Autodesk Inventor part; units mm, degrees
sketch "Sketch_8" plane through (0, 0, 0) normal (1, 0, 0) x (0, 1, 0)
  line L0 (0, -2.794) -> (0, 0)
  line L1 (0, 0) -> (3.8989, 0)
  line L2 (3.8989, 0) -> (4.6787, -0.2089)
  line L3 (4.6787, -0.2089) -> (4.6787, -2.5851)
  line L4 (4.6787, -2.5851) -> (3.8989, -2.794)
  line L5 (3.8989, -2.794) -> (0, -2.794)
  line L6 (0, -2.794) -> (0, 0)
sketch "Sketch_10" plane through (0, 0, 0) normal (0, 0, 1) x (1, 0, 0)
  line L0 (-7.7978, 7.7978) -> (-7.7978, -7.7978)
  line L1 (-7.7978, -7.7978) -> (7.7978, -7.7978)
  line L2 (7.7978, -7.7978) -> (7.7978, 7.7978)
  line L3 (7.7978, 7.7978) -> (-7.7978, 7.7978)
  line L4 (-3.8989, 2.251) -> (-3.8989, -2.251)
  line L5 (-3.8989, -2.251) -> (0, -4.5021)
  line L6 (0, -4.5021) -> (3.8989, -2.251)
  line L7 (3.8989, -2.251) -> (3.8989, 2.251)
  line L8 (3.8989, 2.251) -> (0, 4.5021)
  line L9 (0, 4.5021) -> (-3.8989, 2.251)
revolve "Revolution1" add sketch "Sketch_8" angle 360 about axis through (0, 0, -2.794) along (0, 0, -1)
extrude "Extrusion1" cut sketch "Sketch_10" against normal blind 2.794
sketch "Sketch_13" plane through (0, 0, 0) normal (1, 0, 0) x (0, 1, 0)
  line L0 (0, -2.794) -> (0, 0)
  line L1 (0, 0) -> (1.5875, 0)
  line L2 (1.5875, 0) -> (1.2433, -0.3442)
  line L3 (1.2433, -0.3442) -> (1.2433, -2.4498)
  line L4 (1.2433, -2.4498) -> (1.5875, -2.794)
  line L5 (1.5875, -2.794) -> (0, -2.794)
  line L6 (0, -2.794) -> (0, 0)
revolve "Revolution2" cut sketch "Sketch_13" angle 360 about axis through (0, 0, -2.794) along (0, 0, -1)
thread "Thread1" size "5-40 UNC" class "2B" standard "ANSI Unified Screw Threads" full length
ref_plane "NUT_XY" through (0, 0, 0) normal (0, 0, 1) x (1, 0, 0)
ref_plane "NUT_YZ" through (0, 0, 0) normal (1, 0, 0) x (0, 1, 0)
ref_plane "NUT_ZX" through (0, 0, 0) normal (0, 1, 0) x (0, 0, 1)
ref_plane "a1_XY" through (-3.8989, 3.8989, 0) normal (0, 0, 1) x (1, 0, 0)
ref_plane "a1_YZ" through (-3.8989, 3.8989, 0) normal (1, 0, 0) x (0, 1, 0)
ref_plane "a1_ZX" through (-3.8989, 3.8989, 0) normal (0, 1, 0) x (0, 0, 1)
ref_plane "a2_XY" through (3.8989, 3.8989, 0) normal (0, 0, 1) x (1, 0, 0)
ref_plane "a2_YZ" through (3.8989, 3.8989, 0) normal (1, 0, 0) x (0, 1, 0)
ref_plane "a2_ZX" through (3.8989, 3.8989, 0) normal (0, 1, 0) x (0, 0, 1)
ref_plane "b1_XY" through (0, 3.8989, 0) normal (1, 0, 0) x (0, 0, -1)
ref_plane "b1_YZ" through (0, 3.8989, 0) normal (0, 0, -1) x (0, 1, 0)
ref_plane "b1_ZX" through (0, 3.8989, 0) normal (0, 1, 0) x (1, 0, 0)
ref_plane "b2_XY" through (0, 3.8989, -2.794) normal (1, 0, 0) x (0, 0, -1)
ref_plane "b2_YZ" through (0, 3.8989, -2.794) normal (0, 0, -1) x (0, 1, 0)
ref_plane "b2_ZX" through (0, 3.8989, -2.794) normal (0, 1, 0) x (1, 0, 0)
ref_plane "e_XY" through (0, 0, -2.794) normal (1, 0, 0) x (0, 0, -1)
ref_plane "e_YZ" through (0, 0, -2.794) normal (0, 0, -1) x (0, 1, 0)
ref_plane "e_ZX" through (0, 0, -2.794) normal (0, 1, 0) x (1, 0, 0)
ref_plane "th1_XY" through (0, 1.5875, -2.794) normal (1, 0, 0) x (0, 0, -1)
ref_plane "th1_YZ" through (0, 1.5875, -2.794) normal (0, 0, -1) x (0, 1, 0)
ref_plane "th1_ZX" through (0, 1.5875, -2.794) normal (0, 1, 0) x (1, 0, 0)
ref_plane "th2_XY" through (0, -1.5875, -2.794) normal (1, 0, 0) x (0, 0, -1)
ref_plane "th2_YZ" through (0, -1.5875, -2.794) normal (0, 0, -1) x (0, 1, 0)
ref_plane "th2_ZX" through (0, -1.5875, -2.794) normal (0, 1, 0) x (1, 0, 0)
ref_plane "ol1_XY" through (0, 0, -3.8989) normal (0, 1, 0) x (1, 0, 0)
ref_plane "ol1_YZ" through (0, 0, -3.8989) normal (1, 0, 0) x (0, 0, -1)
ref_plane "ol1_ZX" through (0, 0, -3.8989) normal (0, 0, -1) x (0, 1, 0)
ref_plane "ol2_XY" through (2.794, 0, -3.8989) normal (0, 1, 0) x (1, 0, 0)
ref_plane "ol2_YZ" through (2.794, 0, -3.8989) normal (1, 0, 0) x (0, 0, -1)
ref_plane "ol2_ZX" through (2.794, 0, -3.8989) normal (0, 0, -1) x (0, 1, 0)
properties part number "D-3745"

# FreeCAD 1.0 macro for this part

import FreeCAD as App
import Part
import Sketcher
Q = App.Units.Quantity

doc = App.newDocument("Part")
body = doc.addObject("PartDesign::Body", "Body")

# Sketch on YZ plane
sketch1 = body.newObject("Sketcher::SketchObject", "Sketch")
sketch1.AttachmentSupport = (doc.getObject("YZ_Plane"), [""])
sketch1.MapMode = "FlatFace"
sketch1.addGeometry(Part.LineSegment(App.Vector(0, 0, 0), App.Vector(0, -2.8, 0)), False)
sketch1.addGeometry(Part.LineSegment(App.Vector(0, -2.8, 0), App.Vector(3.9, -2.8, 0)), False)
sketch1.addGeometry(Part.LineSegment(App.Vector(3.9, -2.8, 0), App.Vector(4.7, -2.6, 0)), False)
sketch1.addGeometry(Part.LineSegment(App.Vector(4.7, -2.6, 0), App.Vector(4.7, -0.2, 0)), False)
sketch1.addGeometry(Part.LineSegment(App.Vector(4.7, -0.2, 0), App.Vector(3.9, 0, 0)), False)
sketch1.addGeometry(Part.LineSegment(App.Vector(3.9, 0, 0), App.Vector(0, 0, 0)), False)
sketch1.addConstraint(Sketcher.Constraint("Coincident", 0, 2, 1, 1))
sketch1.addConstraint(Sketcher.Constraint("Coincident", 1, 2, 2, 1))
sketch1.addConstraint(Sketcher.Constraint("Coincident", 2, 2, 3, 1))
sketch1.addConstraint(Sketcher.Constraint("Coincident", 3, 2, 4, 1))
sketch1.addConstraint(Sketcher.Constraint("Coincident", 4, 2, 5, 1))
sketch1.addConstraint(Sketcher.Constraint("Coincident", 5, 2, 0, 1))
sketch1.addConstraint(Sketcher.Constraint("Vertical", 0))
sketch1.addConstraint(Sketcher.Constraint("Horizontal", 1))
sketch1.addConstraint(Sketcher.Constraint("Vertical", 3))
sketch1.addConstraint(Sketcher.Constraint("Horizontal", 5))
sketch1.addConstraint(Sketcher.Constraint("Coincident", 5, 2, -1, 1))
sketch1.addConstraint(Sketcher.Constraint("Vertical", 1, 2, 4, 2))
sketch1.addConstraint(Sketcher.Constraint("Equal", 2, 4))
sketch1.addConstraint(Sketcher.Constraint("DistanceY", 0, 2, 0, 1, Q("0.11 in")))
sketch1.addConstraint(Sketcher.Constraint("DistanceX", 1, 1, 1, 2, Q("0.1535 in")))
sketch1.addConstraint(Sketcher.Constraint("DistanceY", 3, 1, 3, 2, 2.3762))
sketch1.addConstraint(Sketcher.Constraint("DistanceX", -1, 1, 2, 2, Q("0.1842 in")))
revolution = body.newObject("PartDesign::Revolution", "Revolution")
revolution.Profile = sketch1
revolution.ReferenceAxis = (sketch1, ["V_Axis"])
revolution.Angle = 360

# Sketch on XY plane
sketch2 = body.newObject("Sketcher::SketchObject", "Sketch001")
sketch2.AttachmentSupport = (doc.getObject("XY_Plane"), [""])
sketch2.MapMode = "FlatFace"
sketch2.addGeometry(Part.LineSegment(App.Vector(7.8, 7.8, 0), App.Vector(-7.8, 7.8, 0)), False)
sketch2.addGeometry(Part.LineSegment(App.Vector(-7.8, 7.8, 0), App.Vector(-7.8, -7.8, 0)), False)
sketch2.addGeometry(Part.LineSegment(App.Vector(-7.8, -7.8, 0), App.Vector(7.8, -7.8, 0)), False)
sketch2.addGeometry(Part.LineSegment(App.Vector(7.8, -7.8, 0), App.Vector(7.8, 7.8, 0)), False)
sketch2.addGeometry(Part.LineSegment(App.Vector(-3.9, -2.3, 0), App.Vector(-3.9, 2.3, 0)), False)
sketch2.addGeometry(Part.LineSegment(App.Vector(-3.9, 2.3, 0), App.Vector(0, 4.5, 0)), False)
sketch2.addGeometry(Part.LineSegment(App.Vector(0, 4.5, 0), App.Vector(3.9, 2.3, 0)), False)
sketch2.addGeometry(Part.LineSegment(App.Vector(3.9, 2.3, 0), App.Vector(3.9, -2.3, 0)), False)
sketch2.addGeometry(Part.LineSegment(App.Vector(3.9, -2.3, 0), App.Vector(0, -4.5, 0)), False)
sketch2.addGeometry(Part.LineSegment(App.Vector(0, -4.5, 0), App.Vector(-3.9, -2.3, 0)), False)
sketch2.addConstraint(Sketcher.Constraint("Coincident", 0, 2, 1, 1))
sketch2.addConstraint(Sketcher.Constraint("Coincident", 1, 2, 2, 1))
sketch2.addConstraint(Sketcher.Constraint("Coincident", 2, 2, 3, 1))
sketch2.addConstraint(Sketcher.Constraint("Coincident", 3, 2, 0, 1))
sketch2.addConstraint(Sketcher.Constraint("Coincident", 4, 2, 5, 1))
sketch2.addConstraint(Sketcher.Constraint("Coincident", 5, 2, 6, 1))
sketch2.addConstraint(Sketcher.Constraint("Coincident", 6, 2, 7, 1))
sketch2.addConstraint(Sketcher.Constraint("Coincident", 7, 2, 8, 1))
sketch2.addConstraint(Sketcher.Constraint("Coincident", 8, 2, 9, 1))
sketch2.addConstraint(Sketcher.Constraint("Coincident", 9, 2, 4, 1))
sketch2.addConstraint(Sketcher.Constraint("Horizontal", 0))
sketch2.addConstraint(Sketcher.Constraint("Vertical", 1))
sketch2.addConstraint(Sketcher.Constraint("Horizontal", 2))
sketch2.addConstraint(Sketcher.Constraint("Vertical", 3))
sketch2.addConstraint(Sketcher.Constraint("Vertical", 4))
sketch2.addConstraint(Sketcher.Constraint("Vertical", 7))
sketch2.addConstraint(Sketcher.Constraint("Symmetric", 0, 2, 2, 2, -1, 1))
sketch2.addConstraint(Sketcher.Constraint("Symmetric", 4, 2, 7, 2, -1, 1))
sketch2.addConstraint(Sketcher.Constraint("Symmetric", 5, 2, 8, 2, -1, 1))
sketch2.addConstraint(Sketcher.Constraint("PointOnObject", 5, 2, -2))
sketch2.addConstraint(Sketcher.Constraint("Parallel", 6, 9))
sketch2.addConstraint(Sketcher.Constraint("Horizontal", 4, 2, 6, 2))
sketch2.addConstraint(Sketcher.Constraint("Equal", 2, 1))
sketch2.addConstraint(Sketcher.Constraint("Angle", 5, Q("30.0008 deg")))
sketch2.addConstraint(Sketcher.Constraint("DistanceX", 0, 2, 0, 1, Q("0.614 in")))
sketch2.addConstraint(Sketcher.Constraint("DistanceX", 4, 2, 6, 2, Q("0.307 in")))
sketch2.addConstraint(Sketcher.Constraint("DistanceY", 4, 1, 4, 2, 4.502))
pocket1 = body.newObject("PartDesign::Pocket", "Pocket")
pocket1.Profile = sketch2
pocket1.Length = Q("0.11 in")

# Sketch on YZ plane
sketch3 = body.newObject("Sketcher::SketchObject", "Sketch002")
sketch3.AttachmentSupport = (doc.getObject("YZ_Plane"), [""])
sketch3.MapMode = "FlatFace"
sketch3.addGeometry(Part.LineSegment(App.Vector(0, 0, 0), App.Vector(0, -2.79, 0)), False)
sketch3.addGeometry(Part.LineSegment(App.Vector(0, -2.79, 0), App.Vector(1.59, -2.79, 0)), False)
sketch3.addGeometry(Part.LineSegment(App.Vector(1.59, -2.79, 0), App.Vector(1.24, -2.45, 0)), False)
sketch3.addGeometry(Part.LineSegment(App.Vector(1.24, -2.45, 0), App.Vector(1.24, -0.34, 0)), False)
sketch3.addGeometry(Part.LineSegment(App.Vector(1.24, -0.34, 0), App.Vector(1.59, 0, 0)), False)
sketch3.addGeometry(Part.LineSegment(App.Vector(1.59, 0, 0), App.Vector(0, 0, 0)), False)
sketch3.addConstraint(Sketcher.Constraint("Coincident", 0, 2, 1, 1))
sketch3.addConstraint(Sketcher.Constraint("Coincident", 1, 2, 2, 1))
sketch3.addConstraint(Sketcher.Constraint("Coincident", 2, 2, 3, 1))
sketch3.addConstraint(Sketcher.Constraint("Coincident", 3, 2, 4, 1))
sketch3.addConstraint(Sketcher.Constraint("Coincident", 4, 2, 5, 1))
sketch3.addConstraint(Sketcher.Constraint("Coincident", 5, 2, 0, 1))
sketch3.addConstraint(Sketcher.Constraint("Vertical", 0))
sketch3.addConstraint(Sketcher.Constraint("Horizontal", 1))
sketch3.addConstraint(Sketcher.Constraint("Vertical", 3))
sketch3.addConstraint(Sketcher.Constraint("Horizontal", 5))
sketch3.addConstraint(Sketcher.Constraint("Coincident", 5, 2, -1, 1))
sketch3.addConstraint(Sketcher.Constraint("Perpendicular", 2, 4))
sketch3.addConstraint(Sketcher.Constraint("Vertical", 1, 2, 4, 2))
sketch3.addConstraint(Sketcher.Constraint("Equal", 2, 4))
sketch3.addConstraint(Sketcher.Constraint("DistanceY", 0, 2, 0, 1, Q("0.11 in")))
sketch3.addConstraint(Sketcher.Constraint("DistanceX", 1, 1, 1, 2, Q("0.0625 in")))
sketch3.addConstraint(Sketcher.Constraint("DistanceY", 3, 1, 3, 2, Q("0.0829 in")))
groove = body.newObject("PartDesign::Groove", "Groove")
groove.Profile = sketch3
groove.ReferenceAxis = (sketch3, ["V_Axis"])
groove.Angle = 360

doc.recompute()
